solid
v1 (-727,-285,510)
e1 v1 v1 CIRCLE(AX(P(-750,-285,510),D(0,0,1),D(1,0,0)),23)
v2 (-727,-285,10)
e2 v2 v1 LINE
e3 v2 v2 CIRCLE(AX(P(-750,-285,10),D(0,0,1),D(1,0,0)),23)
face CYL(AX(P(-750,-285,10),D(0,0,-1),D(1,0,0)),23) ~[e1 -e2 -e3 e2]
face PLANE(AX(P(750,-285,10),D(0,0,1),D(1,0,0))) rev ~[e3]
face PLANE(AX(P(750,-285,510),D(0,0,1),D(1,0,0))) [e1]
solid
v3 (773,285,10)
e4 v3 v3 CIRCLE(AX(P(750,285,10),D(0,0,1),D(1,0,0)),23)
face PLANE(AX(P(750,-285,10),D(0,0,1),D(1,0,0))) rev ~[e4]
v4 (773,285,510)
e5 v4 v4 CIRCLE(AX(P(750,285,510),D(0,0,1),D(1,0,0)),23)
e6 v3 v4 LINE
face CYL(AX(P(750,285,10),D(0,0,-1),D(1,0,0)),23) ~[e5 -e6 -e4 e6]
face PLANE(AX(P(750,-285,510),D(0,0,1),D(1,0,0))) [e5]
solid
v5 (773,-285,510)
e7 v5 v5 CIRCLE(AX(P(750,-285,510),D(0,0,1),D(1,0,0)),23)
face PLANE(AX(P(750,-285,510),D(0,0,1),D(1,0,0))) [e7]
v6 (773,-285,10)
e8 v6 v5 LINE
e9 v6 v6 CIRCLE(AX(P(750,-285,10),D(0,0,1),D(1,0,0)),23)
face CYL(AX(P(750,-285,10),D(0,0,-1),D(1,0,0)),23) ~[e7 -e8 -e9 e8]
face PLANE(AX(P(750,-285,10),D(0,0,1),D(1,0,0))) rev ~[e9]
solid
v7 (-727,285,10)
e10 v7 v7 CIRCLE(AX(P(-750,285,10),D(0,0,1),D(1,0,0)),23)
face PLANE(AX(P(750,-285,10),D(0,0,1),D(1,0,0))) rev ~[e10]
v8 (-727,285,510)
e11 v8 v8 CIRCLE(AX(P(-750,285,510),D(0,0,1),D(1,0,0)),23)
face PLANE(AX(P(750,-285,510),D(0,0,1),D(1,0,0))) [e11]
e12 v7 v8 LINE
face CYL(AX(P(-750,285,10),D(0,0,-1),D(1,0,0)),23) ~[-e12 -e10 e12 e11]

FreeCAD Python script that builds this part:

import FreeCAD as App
import Part
import Sketcher

V = App.Vector

doc = App.newDocument("Part")
params = doc.addObject("Spreadsheet::Sheet", "Params")
for row, (alias, value) in enumerate([
    ("sketch1_diameter", "46 mm"),
    ("pad1_length", "500 mm"),
], start=1):
    params.set(f"A{row}", alias)
    params.set(f"B{row}", "=" + value)
    params.setAlias(f"B{row}", alias)

body = doc.addObject("PartDesign::Body", "Body")
body.AllowCompound = True

# Sketch on XY plane
sketch1 = body.newObject("Sketcher::SketchObject", "Sketch")
sketch1.AttachmentSupport = (doc.getObject("XY_Plane"), [""])
sketch1.MapMode = "FlatFace"
sketch1.AttachmentOffset = App.Placement(V(0, 0, 10), App.Rotation())
sketch1.addGeometry([
    Part.Circle(V(750, 285, 0), V(0, 0, 1), 23),
    Part.Circle(V(750, -285, 0), V(0, 0, 1), 23),
    Part.Circle(V(-750, -285, 0), V(0, 0, 1), 23),
    Part.Circle(V(-750, 285, 0), V(0, 0, 1), 23),
], False)
sketch1.addConstraint([
    Sketcher.Constraint("Equal", 0, 1),
    Sketcher.Constraint("Equal", 1, 2),
    Sketcher.Constraint("Equal", 2, 3),
    Sketcher.Constraint("Symmetric", 0, 3, 2, 3, -1, 1),
    Sketcher.Constraint("Symmetric", 1, 3, 3, 3, -1, 1),
    Sketcher.Constraint("Symmetric", 1, 3, 2, 3, -2),
    Sketcher.Constraint("Diameter", 0, 46.0),
    Sketcher.Constraint("DistanceX", -1, 1, 0, 3, 750.0),
    Sketcher.Constraint("DistanceY", -1, 1, 0, 3, 285.0),
])
sketch1.setExpression("Constraints[6]", "Params.sketch1_diameter")
pad1 = body.newObject("PartDesign::Pad", "Pad")
pad1.Profile = sketch1
pad1.setExpression("Length", "Params.pad1_length")

doc.recompute()
